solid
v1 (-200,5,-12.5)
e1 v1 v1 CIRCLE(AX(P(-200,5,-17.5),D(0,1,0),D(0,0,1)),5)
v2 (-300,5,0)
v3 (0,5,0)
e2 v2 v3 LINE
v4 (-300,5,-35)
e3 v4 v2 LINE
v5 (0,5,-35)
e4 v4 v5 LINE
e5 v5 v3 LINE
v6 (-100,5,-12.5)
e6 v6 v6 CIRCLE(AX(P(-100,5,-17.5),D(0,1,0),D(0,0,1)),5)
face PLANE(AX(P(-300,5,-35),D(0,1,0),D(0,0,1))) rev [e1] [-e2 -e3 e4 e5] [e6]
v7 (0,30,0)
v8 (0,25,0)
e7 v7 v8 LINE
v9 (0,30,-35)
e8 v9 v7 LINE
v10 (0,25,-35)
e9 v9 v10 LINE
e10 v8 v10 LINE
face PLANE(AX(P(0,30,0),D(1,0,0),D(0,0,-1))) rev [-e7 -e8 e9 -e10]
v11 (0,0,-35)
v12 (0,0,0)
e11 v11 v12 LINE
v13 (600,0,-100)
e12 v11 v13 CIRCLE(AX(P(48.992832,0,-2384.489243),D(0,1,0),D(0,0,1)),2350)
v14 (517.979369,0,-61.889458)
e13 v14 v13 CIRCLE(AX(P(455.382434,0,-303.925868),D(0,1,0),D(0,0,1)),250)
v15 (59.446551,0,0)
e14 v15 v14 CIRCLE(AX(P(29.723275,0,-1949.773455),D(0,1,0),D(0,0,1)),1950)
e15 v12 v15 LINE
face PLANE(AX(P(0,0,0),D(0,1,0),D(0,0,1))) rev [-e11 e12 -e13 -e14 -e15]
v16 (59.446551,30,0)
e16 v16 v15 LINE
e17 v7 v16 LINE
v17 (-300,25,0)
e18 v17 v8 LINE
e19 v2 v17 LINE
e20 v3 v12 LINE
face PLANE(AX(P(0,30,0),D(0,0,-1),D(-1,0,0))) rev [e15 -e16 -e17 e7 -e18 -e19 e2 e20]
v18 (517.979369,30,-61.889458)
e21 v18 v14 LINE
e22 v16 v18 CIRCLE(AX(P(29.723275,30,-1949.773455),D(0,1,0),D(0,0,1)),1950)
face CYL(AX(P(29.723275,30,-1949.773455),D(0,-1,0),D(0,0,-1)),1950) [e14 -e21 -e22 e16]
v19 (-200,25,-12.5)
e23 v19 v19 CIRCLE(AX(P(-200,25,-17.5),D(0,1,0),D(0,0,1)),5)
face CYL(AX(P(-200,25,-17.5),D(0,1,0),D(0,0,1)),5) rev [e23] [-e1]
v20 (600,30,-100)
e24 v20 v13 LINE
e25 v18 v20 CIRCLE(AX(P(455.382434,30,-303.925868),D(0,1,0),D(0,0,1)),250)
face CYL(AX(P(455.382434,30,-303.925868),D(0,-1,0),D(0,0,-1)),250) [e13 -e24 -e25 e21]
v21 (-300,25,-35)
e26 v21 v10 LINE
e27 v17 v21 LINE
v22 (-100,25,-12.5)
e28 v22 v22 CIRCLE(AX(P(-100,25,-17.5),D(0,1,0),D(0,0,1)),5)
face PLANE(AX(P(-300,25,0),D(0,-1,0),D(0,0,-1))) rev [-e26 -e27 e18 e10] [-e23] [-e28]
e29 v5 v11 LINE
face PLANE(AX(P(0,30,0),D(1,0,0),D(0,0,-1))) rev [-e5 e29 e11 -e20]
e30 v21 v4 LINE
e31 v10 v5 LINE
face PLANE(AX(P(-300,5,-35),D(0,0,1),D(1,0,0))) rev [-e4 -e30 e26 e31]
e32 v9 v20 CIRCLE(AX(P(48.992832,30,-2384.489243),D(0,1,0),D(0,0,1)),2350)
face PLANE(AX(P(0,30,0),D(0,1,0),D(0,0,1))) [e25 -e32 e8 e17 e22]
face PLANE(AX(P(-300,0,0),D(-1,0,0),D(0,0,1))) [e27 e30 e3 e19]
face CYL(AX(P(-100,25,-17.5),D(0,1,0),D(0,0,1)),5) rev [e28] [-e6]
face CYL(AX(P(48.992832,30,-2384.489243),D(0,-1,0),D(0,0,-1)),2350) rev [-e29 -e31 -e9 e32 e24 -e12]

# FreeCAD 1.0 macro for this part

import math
import FreeCAD as App
import Part
import Sketcher

V = App.Vector
Q = App.Units.Quantity

doc = App.newDocument("Part")
body = doc.addObject("PartDesign::Body", "Body")

# Sketch on XZ plane
sketch1 = body.newObject("Sketcher::SketchObject", "Sketch")
sketch1.AttachmentSupport = (doc.getObject("XZ_Plane"), [""])
sketch1.MapMode = "FlatFace"
sketch1.addGeometry(Part.LineSegment(V(0, -35, 0), V(0, 0, 0)), False)
sketch1.addGeometry(Part.LineSegment(V(0, 0, 0), V(59, 0, 0)), False)
sketch1.addGeometry(Part.ArcOfCircle(Part.Circle(V(30, -1950, 0), V(0, 0, 1), 1950), math.radians(75.5), math.radians(89.13)), False)
sketch1.addGeometry(Part.ArcOfCircle(Part.Circle(V(455, -304, 0), V(0, 0, 1), 250), math.radians(55), math.radians(75)), False)
sketch1.addGeometry(Part.ArcOfCircle(Part.Circle(V(49, -2384, 0), V(0, 0, 1), 2350), math.radians(76.44), math.radians(91.19)), False)
sketch1.addConstraint(Sketcher.Constraint("Coincident", 0, 2, 1, 1))
sketch1.addConstraint(Sketcher.Constraint("Coincident", 1, 2, 2, 2))
sketch1.addConstraint(Sketcher.Constraint("Tangent", 2, 1, 3, 2))
sketch1.addConstraint(Sketcher.Constraint("Coincident", 3, 1, 4, 1))
sketch1.addConstraint(Sketcher.Constraint("Coincident", 4, 2, 0, 1))
sketch1.addConstraint(Sketcher.Constraint("Vertical", 0))
sketch1.addConstraint(Sketcher.Constraint("Horizontal", 1))
sketch1.addConstraint(Sketcher.Constraint("Coincident", 0, 2, -1, 1))
sketch1.addConstraint(Sketcher.Constraint("Radius", 2, Q("1950 mm")))
sketch1.addConstraint(Sketcher.Constraint("Radius", 3, Q("250 mm")))
sketch1.addConstraint(Sketcher.Constraint("Radius", 4, Q("2350 mm")))
sketch1.addConstraint(Sketcher.Constraint("DistanceY", 0, 1, 0, 2, Q("35 mm")))
sketch1.addConstraint(Sketcher.Constraint("DistanceX", -1, 1, 3, 1, Q("600 mm")))
sketch1.addConstraint(Sketcher.Constraint("DistanceX", 1, 1, 1, 2, Q("59.446551 mm")))
sketch1.addConstraint(Sketcher.Constraint("DistanceY", 3, 3, -1, 1, Q("303.925868 mm")))
sketch1.addConstraint(Sketcher.Constraint("DistanceX", 2, 3, 3, 3, Q("425.659159 mm")))
pad1 = body.newObject("PartDesign::Pad", "Pad")
pad1.Profile = sketch1
pad1.Length = 30
pad1.Reversed = True

# Sketch on YZ plane
sketch2 = body.newObject("Sketcher::SketchObject", "Sketch001")
sketch2.AttachmentSupport = (doc.getObject("YZ_Plane"), [""])
sketch2.MapMode = "FlatFace"
sketch2.addGeometry(Part.LineSegment(V(25, -35, 0), V(5, -35, 0)), False)
sketch2.addGeometry(Part.LineSegment(V(5, -35, 0), V(5, 0, 0)), False)
sketch2.addGeometry(Part.LineSegment(V(5, 0, 0), V(25, 0, 0)), False)
sketch2.addGeometry(Part.LineSegment(V(25, 0, 0), V(25, -35, 0)), False)
sketch2.addConstraint(Sketcher.Constraint("Coincident", 0, 2, 1, 1))
sketch2.addConstraint(Sketcher.Constraint("Coincident", 1, 2, 2, 1))
sketch2.addConstraint(Sketcher.Constraint("Coincident", 2, 2, 3, 1))
sketch2.addConstraint(Sketcher.Constraint("Coincident", 3, 2, 0, 1))
sketch2.addConstraint(Sketcher.Constraint("Horizontal", 0))
sketch2.addConstraint(Sketcher.Constraint("Vertical", 1))
sketch2.addConstraint(Sketcher.Constraint("Horizontal", 2))
sketch2.addConstraint(Sketcher.Constraint("Vertical", 3))
sketch2.addConstraint(Sketcher.Constraint("PointOnObject", 1, 2, -1))
sketch2.addConstraint(Sketcher.Constraint("DistanceX", 0, 2, 0, 1, Q("20 mm")))
sketch2.addConstraint(Sketcher.Constraint("DistanceY", 1, 1, 1, 2, Q("35 mm")))
sketch2.addConstraint(Sketcher.Constraint("DistanceX", -1, 1, 0, 2, Q("5 mm")))
pad2 = body.newObject("PartDesign::Pad", "Pad001")
pad2.Profile = sketch2
pad2.Length = 300
pad2.Reversed = True

# Sketch on XZ plane
sketch3 = body.newObject("Sketcher::SketchObject", "Sketch002")
sketch3.AttachmentSupport = (doc.getObject("XZ_Plane"), [""])
sketch3.MapMode = "FlatFace"
sketch3.AttachmentOffset = App.Placement(V(0, 0, -25), App.Rotation())
sketch3.addGeometry(Part.Circle(V(-200, -18, 0), V(0, 0, 1), 5), False)
sketch3.addGeometry(Part.Circle(V(-100, -18, 0), V(0, 0, 1), 5), False)
sketch3.addConstraint(Sketcher.Constraint("Equal", 0, 1))
sketch3.addConstraint(Sketcher.Constraint("Horizontal", 0, 3, 1, 3))
sketch3.addConstraint(Sketcher.Constraint("Diameter", 0, Q("10 mm")))
sketch3.addConstraint(Sketcher.Constraint("DistanceX", 0, 3, -1, 1, Q("200 mm")))
sketch3.addConstraint(Sketcher.Constraint("DistanceX", 1, 3, -1, 1, Q("100 mm")))
sketch3.addConstraint(Sketcher.Constraint("DistanceY", 0, 3, -1, 1, Q("17.5 mm")))
doc.recompute()
hole = body.newObject("PartDesign::Hole", "Hole")
hole.Profile = sketch3
hole.ThreadType = "None"
hole.Diameter = 10
hole.DepthType = "ThroughAll"
hole.Reversed = True

doc.recompute()
